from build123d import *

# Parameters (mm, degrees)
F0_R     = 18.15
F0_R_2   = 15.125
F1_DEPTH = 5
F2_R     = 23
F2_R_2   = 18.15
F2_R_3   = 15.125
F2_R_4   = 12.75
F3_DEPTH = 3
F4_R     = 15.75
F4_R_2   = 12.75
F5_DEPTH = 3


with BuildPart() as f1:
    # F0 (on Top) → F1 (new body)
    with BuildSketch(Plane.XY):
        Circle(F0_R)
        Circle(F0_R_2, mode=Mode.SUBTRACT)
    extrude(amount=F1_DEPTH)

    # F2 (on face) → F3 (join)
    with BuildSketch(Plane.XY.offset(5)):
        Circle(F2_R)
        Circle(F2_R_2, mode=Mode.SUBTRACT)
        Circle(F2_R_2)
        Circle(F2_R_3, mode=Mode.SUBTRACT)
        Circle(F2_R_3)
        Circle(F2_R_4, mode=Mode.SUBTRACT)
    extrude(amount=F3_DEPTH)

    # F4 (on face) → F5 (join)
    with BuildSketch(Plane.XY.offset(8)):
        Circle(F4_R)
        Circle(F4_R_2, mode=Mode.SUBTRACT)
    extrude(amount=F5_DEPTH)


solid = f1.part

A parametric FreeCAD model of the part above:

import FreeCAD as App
import Part
import Sketcher

V = App.Vector

doc = App.newDocument("Part")
body = doc.addObject("PartDesign::Body", "Body")

# Sketch on XY plane
sketch1 = doc.addObject("Sketcher::SketchObject", "Sketch")
body.addObject(sketch1)
sketch1.AttachmentSupport = (doc.XY_Plane, [""])
sketch1.MapMode = "FlatFace"
sketch1.addGeometry([
    Part.Circle(V(0, 0, 0), V(0, 0, 1), 18),
    Part.Circle(V(0, 0, 0), V(0, 0, 1), 15),
], False)
sketch1.addConstraint([
    Sketcher.Constraint("Coincident", 0, 3, -1, 1),
    Sketcher.Constraint("Coincident", 1, 3, -1, 1),
    Sketcher.Constraint("Diameter", 0, 36.3),
    Sketcher.Constraint("Diameter", 1, 30.25),
])
pad1 = doc.addObject("PartDesign::Pad", "Pad")
body.addObject(pad1)
pad1.Profile = sketch1
pad1.Length = 5

# Sketch on XY plane
sketch2 = doc.addObject("Sketcher::SketchObject", "Sketch001")
body.addObject(sketch2)
sketch2.AttachmentSupport = (doc.XY_Plane, [""])
sketch2.MapMode = "FlatFace"
sketch2.AttachmentOffset = App.Placement(V(0, 0, 5), App.Rotation())
sketch2.addGeometry([
    Part.Circle(V(0, 0, 0), V(0, 0, 1), 23),
    Part.Circle(V(0, 0, 0), V(0, 0, 1), 13),
], False)
sketch2.addConstraint([
    Sketcher.Constraint("Coincident", 0, 3, -1, 1),
    Sketcher.Constraint("Coincident", 1, 3, -1, 1),
    Sketcher.Constraint("Diameter", 0, 46.0),
    Sketcher.Constraint("Diameter", 1, 25.5),
])
pad2 = doc.addObject("PartDesign::Pad", "Pad001")
body.addObject(pad2)
pad2.Profile = sketch2
pad2.Length = 3

# Sketch on XY plane
sketch3 = doc.addObject("Sketcher::SketchObject", "Sketch002")
body.addObject(sketch3)
sketch3.AttachmentSupport = (doc.XY_Plane, [""])
sketch3.MapMode = "FlatFace"
sketch3.AttachmentOffset = App.Placement(V(0, 0, 8), App.Rotation())
sketch3.addGeometry([
    Part.Circle(V(0, 0, 0), V(0, 0, 1), 16),
    Part.Circle(V(0, 0, 0), V(0, 0, 1), 13),
], False)
sketch3.addConstraint([
    Sketcher.Constraint("Coincident", 0, 3, -1, 1),
    Sketcher.Constraint("Coincident", 1, 3, -1, 1),
    Sketcher.Constraint("Diameter", 0, 31.5),
    Sketcher.Constraint("Diameter", 1, 25.5),
])
pad3 = doc.addObject("PartDesign::Pad", "Pad002")
body.addObject(pad3)
pad3.Profile = sketch3
pad3.Length = 3

doc.recompute()
